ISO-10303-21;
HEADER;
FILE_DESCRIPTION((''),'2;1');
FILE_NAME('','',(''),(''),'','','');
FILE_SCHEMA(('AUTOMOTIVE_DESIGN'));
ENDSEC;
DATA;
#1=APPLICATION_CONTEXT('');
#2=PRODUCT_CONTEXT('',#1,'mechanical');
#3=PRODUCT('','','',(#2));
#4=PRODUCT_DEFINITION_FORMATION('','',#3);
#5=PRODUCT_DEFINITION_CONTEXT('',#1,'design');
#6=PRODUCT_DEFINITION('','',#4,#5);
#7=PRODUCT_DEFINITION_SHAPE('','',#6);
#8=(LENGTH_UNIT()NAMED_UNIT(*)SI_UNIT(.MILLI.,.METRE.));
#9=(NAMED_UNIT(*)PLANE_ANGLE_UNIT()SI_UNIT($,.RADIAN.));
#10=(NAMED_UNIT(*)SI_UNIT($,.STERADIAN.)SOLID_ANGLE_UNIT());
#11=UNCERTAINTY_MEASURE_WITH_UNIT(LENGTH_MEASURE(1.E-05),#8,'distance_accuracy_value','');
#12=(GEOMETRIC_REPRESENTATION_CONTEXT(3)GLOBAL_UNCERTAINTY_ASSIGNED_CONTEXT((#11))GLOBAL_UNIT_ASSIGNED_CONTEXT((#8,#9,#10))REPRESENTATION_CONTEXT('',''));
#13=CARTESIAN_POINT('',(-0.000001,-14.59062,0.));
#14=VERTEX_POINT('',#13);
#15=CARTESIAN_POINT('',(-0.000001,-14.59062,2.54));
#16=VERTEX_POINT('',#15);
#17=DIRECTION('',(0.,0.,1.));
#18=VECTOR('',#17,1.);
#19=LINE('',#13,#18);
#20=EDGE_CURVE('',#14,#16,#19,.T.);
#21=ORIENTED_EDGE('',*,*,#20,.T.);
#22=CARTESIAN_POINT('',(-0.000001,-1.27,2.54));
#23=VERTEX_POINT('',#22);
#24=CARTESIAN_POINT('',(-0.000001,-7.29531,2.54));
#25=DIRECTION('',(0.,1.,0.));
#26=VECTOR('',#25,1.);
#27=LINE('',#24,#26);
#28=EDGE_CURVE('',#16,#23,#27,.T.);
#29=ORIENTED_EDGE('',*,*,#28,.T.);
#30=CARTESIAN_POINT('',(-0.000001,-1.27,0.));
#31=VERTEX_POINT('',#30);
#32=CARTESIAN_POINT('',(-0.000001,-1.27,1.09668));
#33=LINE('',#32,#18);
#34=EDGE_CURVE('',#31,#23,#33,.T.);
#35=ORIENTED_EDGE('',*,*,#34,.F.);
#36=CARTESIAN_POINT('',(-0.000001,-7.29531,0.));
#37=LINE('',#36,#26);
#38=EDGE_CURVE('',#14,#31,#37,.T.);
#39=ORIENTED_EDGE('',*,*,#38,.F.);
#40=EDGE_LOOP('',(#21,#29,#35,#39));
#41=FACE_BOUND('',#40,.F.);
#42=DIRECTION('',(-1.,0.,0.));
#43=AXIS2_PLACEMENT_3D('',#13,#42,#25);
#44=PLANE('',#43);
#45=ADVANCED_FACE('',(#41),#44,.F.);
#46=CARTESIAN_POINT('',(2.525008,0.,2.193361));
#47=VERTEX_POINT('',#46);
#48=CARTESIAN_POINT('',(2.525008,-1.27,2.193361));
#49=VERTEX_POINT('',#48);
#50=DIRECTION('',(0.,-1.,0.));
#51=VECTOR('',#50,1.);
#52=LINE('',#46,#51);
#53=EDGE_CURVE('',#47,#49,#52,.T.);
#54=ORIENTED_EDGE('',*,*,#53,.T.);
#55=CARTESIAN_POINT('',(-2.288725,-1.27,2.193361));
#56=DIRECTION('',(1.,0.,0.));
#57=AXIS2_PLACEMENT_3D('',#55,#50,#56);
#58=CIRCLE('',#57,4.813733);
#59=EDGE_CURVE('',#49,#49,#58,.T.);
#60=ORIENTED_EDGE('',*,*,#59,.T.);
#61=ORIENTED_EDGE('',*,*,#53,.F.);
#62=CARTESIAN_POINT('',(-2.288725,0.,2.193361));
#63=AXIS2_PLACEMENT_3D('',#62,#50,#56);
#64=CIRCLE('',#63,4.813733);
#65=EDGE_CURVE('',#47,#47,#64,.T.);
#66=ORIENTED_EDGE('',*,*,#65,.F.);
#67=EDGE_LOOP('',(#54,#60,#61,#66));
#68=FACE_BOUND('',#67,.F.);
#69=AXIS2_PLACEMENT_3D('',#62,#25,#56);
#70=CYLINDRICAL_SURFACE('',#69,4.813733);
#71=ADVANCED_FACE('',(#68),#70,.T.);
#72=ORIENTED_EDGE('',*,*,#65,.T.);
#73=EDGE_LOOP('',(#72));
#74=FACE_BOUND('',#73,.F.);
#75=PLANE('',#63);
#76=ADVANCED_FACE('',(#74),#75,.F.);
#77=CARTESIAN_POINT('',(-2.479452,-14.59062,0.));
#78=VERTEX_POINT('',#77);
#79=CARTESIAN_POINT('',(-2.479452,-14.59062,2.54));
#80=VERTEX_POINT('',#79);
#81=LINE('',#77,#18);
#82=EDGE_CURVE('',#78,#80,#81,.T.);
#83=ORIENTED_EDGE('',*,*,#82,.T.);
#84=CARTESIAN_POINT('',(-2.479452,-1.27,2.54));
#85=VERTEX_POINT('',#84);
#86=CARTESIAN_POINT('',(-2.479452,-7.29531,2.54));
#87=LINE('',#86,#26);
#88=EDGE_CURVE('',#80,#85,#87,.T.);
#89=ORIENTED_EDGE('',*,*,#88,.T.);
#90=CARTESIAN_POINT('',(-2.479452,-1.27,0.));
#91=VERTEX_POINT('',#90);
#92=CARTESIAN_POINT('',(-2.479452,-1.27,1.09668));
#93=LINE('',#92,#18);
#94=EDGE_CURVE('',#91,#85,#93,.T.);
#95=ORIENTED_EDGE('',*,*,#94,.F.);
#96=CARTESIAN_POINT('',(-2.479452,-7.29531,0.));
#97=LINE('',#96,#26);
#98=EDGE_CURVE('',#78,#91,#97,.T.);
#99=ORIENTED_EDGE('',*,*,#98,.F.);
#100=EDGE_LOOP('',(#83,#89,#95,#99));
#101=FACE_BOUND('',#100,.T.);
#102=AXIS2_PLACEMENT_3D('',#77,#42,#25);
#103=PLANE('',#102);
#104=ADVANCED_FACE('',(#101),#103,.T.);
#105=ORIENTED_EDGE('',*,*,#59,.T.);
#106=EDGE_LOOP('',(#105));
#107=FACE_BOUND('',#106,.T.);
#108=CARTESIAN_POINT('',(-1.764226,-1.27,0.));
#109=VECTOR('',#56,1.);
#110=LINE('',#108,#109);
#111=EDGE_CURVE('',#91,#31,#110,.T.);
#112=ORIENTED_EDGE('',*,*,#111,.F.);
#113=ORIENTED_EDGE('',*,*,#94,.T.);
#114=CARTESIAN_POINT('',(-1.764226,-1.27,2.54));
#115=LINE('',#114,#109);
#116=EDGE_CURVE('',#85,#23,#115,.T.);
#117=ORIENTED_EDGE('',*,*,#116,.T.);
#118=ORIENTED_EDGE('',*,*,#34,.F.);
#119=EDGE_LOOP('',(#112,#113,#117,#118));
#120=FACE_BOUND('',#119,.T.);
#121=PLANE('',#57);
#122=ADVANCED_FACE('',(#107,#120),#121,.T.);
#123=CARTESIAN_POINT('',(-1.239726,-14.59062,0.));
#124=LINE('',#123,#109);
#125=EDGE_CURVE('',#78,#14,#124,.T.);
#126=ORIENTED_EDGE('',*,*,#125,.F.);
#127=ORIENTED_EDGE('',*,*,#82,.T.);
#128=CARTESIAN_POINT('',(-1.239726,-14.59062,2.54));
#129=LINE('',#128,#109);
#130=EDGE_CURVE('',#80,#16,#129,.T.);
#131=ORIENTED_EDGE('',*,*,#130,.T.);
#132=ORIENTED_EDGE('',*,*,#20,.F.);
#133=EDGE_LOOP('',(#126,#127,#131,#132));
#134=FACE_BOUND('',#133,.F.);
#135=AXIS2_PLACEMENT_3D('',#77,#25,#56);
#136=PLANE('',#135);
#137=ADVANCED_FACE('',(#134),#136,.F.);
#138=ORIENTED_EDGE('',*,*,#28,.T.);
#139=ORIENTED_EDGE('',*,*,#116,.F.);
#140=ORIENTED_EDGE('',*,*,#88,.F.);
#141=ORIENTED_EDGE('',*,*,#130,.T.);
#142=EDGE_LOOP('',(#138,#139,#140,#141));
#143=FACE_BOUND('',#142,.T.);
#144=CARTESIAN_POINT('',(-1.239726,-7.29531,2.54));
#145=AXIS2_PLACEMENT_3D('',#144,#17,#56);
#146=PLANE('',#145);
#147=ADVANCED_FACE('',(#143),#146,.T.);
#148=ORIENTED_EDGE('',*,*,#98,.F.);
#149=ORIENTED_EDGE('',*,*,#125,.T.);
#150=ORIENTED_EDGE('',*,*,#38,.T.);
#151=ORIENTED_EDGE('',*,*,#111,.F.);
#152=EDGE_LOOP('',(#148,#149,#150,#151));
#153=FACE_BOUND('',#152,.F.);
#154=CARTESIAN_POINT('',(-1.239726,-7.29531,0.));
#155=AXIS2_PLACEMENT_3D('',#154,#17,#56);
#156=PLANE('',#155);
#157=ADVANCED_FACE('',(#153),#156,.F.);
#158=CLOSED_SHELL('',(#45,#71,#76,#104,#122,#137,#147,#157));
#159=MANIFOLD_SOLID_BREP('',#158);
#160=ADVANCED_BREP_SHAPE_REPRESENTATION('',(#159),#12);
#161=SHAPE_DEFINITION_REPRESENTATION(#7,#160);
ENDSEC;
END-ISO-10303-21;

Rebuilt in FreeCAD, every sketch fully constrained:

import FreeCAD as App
import Part
import Sketcher

doc = App.newDocument("Part")
params = doc.addObject("Spreadsheet::Sheet", "Params")
for row, (alias, value) in enumerate([
    ("pad1_length", "0.1 in"),
    ("pad2_length", "0.05 in"),
], start=1):
    params.set(f"A{row}", alias)
    params.set(f"B{row}", "=" + value)
    params.setAlias(f"B{row}", alias)

body = doc.addObject("PartDesign::Body", "Body")

# Sketch on XY plane
sketch1 = body.newObject("Sketcher::SketchObject", "Sketch")
sketch1.AttachmentSupport = (doc.getObject("XY_Plane"), [""])
sketch1.MapMode = "FlatFace"
sketch1.addGeometry([
    Part.LineSegment(App.Vector(-2.479452, 0, 0), App.Vector(-2.479452, -14.59062, 0)),
    Part.LineSegment(App.Vector(-2.479452, -14.59062, 0), App.Vector(0, -14.59062, 0)),
    Part.LineSegment(App.Vector(0, -14.59062, 0), App.Vector(0, 0, 0)),
    Part.LineSegment(App.Vector(0, 0, 0), App.Vector(-2.479452, 0, 0)),
], False)
sketch1.addConstraint([
    Sketcher.Constraint("Coincident", 0, 2, 1, 1),
    Sketcher.Constraint("Coincident", 1, 2, 2, 1),
    Sketcher.Constraint("Coincident", 2, 2, 3, 1),
    Sketcher.Constraint("Coincident", 3, 2, 0, 1),
    Sketcher.Constraint("Vertical", 0),
    Sketcher.Constraint("Horizontal", 1),
    Sketcher.Constraint("Vertical", 2),
    Sketcher.Constraint("Horizontal", 3),
    Sketcher.Constraint("Coincident", 2, 2, -1, 1),
    Sketcher.Constraint("DistanceX", 1, 1, 1, 2, 2.479451),
    Sketcher.Constraint("DistanceY", 0, 2, 0, 1, 14.59062),
])
pad1 = body.newObject("PartDesign::Pad", "Pad")
pad1.Profile = sketch1
pad1.setExpression("Length", "Params.pad1_length")

# Sketch on XZ plane
sketch2 = body.newObject("Sketcher::SketchObject", "Sketch001")
sketch2.AttachmentSupport = (doc.getObject("XZ_Plane"), [""])
sketch2.MapMode = "FlatFace"
sketch2.addGeometry(Part.Circle(App.Vector(-2.288725, 2.193361, 0), App.Vector(0, 0, 1), 4.813733), False)
sketch2.addConstraint([
    Sketcher.Constraint("Diameter", 0, 9.627466),
    Sketcher.Constraint("DistanceY", -1, 1, 0, 3, 2.193361),
    Sketcher.Constraint("DistanceX", 0, 3, -1, 1, 2.288725),
])
pad2 = body.newObject("PartDesign::Pad", "Pad001")
pad2.Profile = sketch2
pad2.setExpression("Length", "Params.pad2_length")

doc.recompute()
